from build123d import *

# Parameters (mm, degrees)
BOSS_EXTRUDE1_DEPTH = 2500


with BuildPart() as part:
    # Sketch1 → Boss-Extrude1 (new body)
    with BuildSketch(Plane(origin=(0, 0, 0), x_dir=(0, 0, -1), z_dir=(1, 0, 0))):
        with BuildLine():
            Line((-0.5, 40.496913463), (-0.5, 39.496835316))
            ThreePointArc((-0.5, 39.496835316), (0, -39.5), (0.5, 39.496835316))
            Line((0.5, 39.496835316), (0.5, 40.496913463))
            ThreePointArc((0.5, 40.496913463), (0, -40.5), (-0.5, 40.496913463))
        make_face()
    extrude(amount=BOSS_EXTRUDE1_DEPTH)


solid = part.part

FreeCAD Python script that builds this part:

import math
import FreeCAD as App
import Part
import Sketcher

V = App.Vector
Q = App.Units.Quantity

doc = App.newDocument("Part")
body = doc.addObject("PartDesign::Body", "Body")

# Sketch on YZ plane
sketch1 = body.newObject("Sketcher::SketchObject", "Sketch")
sketch1.AttachmentSupport = (doc.getObject("YZ_Plane"), [""])
sketch1.MapMode = "FlatFace"
sketch1.addGeometry([
    Part.LineSegment(V(39.5, 0.5, 0), V(40.5, 0.5, 0)),
    Part.ArcOfCircle(Part.Circle(V(0, 0, 0), V(0, 0, 1), 40.5), math.radians(1), math.radians(359)),
    Part.LineSegment(V(40.5, -0.5, 0), V(39.5, -0.5, 0)),
    Part.ArcOfCircle(Part.Circle(V(0, 0, 0), V(0, 0, 1), 39.5), math.radians(1), math.radians(359)),
], False)
sketch1.addConstraint([
    Sketcher.Constraint("Coincident", 0, 2, 1, 1),
    Sketcher.Constraint("Coincident", 1, 2, 2, 1),
    Sketcher.Constraint("Coincident", 2, 2, 3, 2),
    Sketcher.Constraint("Coincident", 3, 1, 0, 1),
    Sketcher.Constraint("Horizontal", 0),
    Sketcher.Constraint("Horizontal", 2),
    Sketcher.Constraint("Coincident", 1, 3, -1, 1),
    Sketcher.Constraint("Coincident", 3, 3, -1, 1),
    Sketcher.Constraint("Vertical", 0, 2, 1, 2),
    Sketcher.Constraint("Radius", 1, Q("40.5 mm")),
    Sketcher.Constraint("Radius", 3, Q("39.5 mm")),
    Sketcher.Constraint("DistanceY", 1, 2, 0, 2, Q("1 mm")),
])
pad1 = body.newObject("PartDesign::Pad", "Pad")
pad1.Profile = sketch1
pad1.Length = 2500

doc.recompute()
